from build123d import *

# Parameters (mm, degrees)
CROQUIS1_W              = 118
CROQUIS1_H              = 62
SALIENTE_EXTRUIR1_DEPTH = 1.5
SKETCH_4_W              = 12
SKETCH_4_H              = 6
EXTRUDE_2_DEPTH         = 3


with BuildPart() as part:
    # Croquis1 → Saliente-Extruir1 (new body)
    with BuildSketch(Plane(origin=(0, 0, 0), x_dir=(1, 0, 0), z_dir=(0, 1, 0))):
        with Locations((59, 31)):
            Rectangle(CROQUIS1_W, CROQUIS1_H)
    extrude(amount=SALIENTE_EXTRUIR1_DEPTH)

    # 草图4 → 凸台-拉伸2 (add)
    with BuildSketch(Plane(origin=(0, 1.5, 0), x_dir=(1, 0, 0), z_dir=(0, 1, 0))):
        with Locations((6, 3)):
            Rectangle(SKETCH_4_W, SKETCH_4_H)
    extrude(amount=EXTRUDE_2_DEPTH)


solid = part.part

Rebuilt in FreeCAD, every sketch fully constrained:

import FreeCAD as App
import Part
import Sketcher

V = App.Vector

doc = App.newDocument("Part")
body = doc.addObject("PartDesign::Body", "Body")

sketch1 = doc.addObject("Sketcher::SketchObject", "Sketch")
body.addObject(sketch1)
sketch1.AttachmentSupport = (doc.XZ_Plane, [""])
sketch1.MapMode = "FlatFace"
sketch1.addGeometry([
    Part.LineSegment(V(0, -62, 0), V(0, 0, 0)),
    Part.LineSegment(V(0, 0, 0), V(118, 0, 0)),
    Part.LineSegment(V(118, 0, 0), V(118, -62, 0)),
    Part.LineSegment(V(118, -62, 0), V(0, -62, 0)),
], False)
sketch1.addConstraint([
    Sketcher.Constraint("Coincident", 0, 2, 1, 1),
    Sketcher.Constraint("Coincident", 1, 2, 2, 1),
    Sketcher.Constraint("Coincident", 2, 2, 3, 1),
    Sketcher.Constraint("Coincident", 3, 2, 0, 1),
    Sketcher.Constraint("Vertical", 0),
    Sketcher.Constraint("Horizontal", 1),
    Sketcher.Constraint("Vertical", 2),
    Sketcher.Constraint("Horizontal", 3),
    Sketcher.Constraint("Coincident", 0, 2, -1, 1),
    Sketcher.Constraint("DistanceX", 1, 1, 1, 2, 118.0),
    Sketcher.Constraint("DistanceY", 0, 1, 0, 2, 62.0),
])
pad1 = doc.addObject("PartDesign::Pad", "Pad")
body.addObject(pad1)
pad1.Profile = sketch1
pad1.Length = 1.5
pad1.Reversed = True

sketch2 = doc.addObject("Sketcher::SketchObject", "Sketch001")
body.addObject(sketch2)
sketch2.AttachmentSupport = (doc.XZ_Plane, [""])
sketch2.MapMode = "FlatFace"
sketch2.AttachmentOffset = App.Placement(V(0, 0, -1.5), App.Rotation())
sketch2.addGeometry([
    Part.LineSegment(V(0, -6, 0), V(0, 0, 0)),
    Part.LineSegment(V(0, 0, 0), V(12, 0, 0)),
    Part.LineSegment(V(12, 0, 0), V(12, -6, 0)),
    Part.LineSegment(V(12, -6, 0), V(0, -6, 0)),
], False)
sketch2.addConstraint([
    Sketcher.Constraint("Coincident", 0, 2, 1, 1),
    Sketcher.Constraint("Coincident", 1, 2, 2, 1),
    Sketcher.Constraint("Coincident", 2, 2, 3, 1),
    Sketcher.Constraint("Coincident", 3, 2, 0, 1),
    Sketcher.Constraint("Vertical", 0),
    Sketcher.Constraint("Horizontal", 1),
    Sketcher.Constraint("Vertical", 2),
    Sketcher.Constraint("Horizontal", 3),
    Sketcher.Constraint("Coincident", 0, 2, -1, 1),
    Sketcher.Constraint("DistanceX", 1, 1, 1, 2, 12.0),
    Sketcher.Constraint("DistanceY", 0, 1, 0, 2, 6.0),
])
pad2 = doc.addObject("PartDesign::Pad", "Pad001")
body.addObject(pad2)
pad2.Profile = sketch2
pad2.Length = 3
pad2.Reversed = True

doc.recompute()
